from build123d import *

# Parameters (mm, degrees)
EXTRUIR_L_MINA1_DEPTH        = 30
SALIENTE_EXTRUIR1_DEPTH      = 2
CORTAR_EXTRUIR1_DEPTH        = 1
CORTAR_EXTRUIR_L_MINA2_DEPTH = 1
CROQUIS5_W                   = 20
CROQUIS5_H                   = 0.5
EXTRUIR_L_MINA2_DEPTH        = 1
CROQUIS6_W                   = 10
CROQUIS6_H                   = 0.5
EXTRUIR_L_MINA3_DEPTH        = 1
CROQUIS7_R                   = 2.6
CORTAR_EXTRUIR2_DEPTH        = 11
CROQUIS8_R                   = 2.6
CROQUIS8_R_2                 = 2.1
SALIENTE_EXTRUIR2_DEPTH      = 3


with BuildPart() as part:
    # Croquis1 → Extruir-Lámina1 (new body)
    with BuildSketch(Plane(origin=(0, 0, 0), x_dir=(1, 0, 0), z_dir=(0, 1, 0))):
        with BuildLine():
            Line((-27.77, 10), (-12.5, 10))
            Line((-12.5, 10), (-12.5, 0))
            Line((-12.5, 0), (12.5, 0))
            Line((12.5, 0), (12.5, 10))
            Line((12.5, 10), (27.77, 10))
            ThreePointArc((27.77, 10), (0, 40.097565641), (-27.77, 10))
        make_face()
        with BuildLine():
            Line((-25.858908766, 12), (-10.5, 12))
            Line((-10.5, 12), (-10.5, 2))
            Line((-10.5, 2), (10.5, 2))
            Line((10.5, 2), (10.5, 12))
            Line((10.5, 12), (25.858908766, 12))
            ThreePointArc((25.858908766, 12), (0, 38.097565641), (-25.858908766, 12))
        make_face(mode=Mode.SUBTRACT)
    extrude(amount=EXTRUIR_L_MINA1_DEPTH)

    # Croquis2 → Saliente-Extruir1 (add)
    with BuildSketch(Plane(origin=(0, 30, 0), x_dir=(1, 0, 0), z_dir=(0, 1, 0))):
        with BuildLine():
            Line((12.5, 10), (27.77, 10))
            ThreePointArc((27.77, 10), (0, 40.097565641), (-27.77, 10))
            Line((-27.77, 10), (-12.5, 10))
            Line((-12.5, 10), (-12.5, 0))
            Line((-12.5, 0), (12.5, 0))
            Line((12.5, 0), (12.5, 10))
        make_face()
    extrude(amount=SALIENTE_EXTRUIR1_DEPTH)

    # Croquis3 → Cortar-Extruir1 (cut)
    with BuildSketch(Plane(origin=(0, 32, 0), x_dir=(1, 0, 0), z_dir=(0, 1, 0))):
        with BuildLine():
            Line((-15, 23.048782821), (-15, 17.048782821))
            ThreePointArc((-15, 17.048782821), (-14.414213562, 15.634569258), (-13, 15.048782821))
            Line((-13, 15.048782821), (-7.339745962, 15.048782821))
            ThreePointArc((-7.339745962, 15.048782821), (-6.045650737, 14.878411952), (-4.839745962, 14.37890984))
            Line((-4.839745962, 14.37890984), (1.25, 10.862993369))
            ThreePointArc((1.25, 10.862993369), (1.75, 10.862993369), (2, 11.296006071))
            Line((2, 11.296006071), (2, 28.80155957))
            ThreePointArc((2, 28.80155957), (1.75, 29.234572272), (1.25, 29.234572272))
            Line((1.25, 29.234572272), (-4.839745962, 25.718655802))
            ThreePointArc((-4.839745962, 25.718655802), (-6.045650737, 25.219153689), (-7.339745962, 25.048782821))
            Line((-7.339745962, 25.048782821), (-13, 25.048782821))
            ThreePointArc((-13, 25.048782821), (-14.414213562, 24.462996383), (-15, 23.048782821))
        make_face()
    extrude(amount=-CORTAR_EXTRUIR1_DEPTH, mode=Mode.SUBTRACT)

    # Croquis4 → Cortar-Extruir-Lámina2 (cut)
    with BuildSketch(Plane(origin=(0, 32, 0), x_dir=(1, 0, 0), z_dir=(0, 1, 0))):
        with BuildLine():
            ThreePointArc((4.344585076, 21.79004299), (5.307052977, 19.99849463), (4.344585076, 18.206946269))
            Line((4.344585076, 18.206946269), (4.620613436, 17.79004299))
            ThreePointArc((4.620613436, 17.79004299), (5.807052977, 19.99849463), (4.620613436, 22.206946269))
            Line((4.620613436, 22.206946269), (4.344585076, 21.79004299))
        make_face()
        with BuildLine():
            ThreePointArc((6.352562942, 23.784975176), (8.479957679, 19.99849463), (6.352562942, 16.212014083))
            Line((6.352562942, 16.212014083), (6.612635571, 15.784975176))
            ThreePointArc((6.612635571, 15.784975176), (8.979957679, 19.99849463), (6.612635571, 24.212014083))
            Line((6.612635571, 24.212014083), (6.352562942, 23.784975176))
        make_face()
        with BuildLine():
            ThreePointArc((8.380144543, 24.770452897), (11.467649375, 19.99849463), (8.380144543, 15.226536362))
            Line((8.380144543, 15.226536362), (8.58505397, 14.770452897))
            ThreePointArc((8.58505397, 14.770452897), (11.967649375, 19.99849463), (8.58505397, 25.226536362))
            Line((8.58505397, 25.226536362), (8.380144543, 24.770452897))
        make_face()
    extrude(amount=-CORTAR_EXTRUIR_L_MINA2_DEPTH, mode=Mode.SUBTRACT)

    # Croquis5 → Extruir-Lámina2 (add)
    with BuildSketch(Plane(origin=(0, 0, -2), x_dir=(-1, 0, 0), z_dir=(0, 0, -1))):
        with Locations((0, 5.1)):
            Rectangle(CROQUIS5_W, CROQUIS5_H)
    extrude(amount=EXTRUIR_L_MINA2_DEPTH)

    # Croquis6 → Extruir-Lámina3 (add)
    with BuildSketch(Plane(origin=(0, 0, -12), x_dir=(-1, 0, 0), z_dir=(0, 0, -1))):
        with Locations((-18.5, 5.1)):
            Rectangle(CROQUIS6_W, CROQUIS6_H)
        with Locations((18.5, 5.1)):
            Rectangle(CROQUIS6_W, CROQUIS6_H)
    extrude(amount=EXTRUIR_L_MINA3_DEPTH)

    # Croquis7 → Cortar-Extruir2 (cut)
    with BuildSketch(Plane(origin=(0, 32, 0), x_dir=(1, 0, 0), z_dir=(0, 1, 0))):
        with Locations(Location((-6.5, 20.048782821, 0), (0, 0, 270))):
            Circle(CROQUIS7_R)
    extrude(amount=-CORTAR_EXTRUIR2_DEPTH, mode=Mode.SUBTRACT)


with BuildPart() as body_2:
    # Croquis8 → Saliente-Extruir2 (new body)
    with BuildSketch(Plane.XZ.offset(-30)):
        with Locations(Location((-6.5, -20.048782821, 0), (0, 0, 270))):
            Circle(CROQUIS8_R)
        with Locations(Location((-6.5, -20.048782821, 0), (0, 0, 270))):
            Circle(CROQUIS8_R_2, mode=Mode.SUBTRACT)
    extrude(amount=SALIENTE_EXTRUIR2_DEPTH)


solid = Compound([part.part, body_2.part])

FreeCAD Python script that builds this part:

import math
import FreeCAD as App
import Part
import Sketcher

V = App.Vector
Q = App.Units.Quantity

doc = App.newDocument("Part")
params = doc.addObject("Spreadsheet::Sheet", "Params")
for row, (alias, value) in enumerate([
    ("sketch1_width", "25 mm"),
    ("sketch1_width2", "21 mm"),
    ("sketch1_height", "10 mm"),
    ("sketch1_radius", "27.86 mm"),
    ("sketch1_radius2", "25.86 mm"),
    ("pad1_length", "30 mm"),
    ("sketch2_width", "25 mm"),
    ("sketch2_height", "10 mm"),
    ("sketch2_radius", "27.86 mm"),
    ("sketch2_width2", "15.27 mm"),
    ("pad2_length", "2 mm"),
    ("sketch3_radius", "2 mm"),
    ("sketch3_radius2", "5 mm"),
    ("sketch3_radius3", "0.5 mm"),
    ("sketch3_height", "6 mm"),
    ("pocket1_length", "1 mm"),
    ("sketch4_length", "0.5 mm"),
    ("pocket2_length", "1 mm"),
    ("sketch5_width", "20 mm"),
    ("sketch5_height", "0.5 mm"),
    ("pad3_length", "1 mm"),
    ("sketch6_width", "10 mm"),
    ("sketch6_height", "0.5 mm"),
    ("pad4_length", "1 mm"),
    ("sketch7_diameter", "5.2 mm"),
    ("pocket3_length", "11 mm"),
    ("sketch8_diameter", "5.2 mm"),
    ("sketch8_diameter2", "4.2 mm"),
    ("pad5_length", "3 mm"),
], start=1):
    params.set(f"A{row}", alias)
    params.set(f"B{row}", "=" + value)
    params.setAlias(f"B{row}", alias)

body = doc.addObject("PartDesign::Body", "Body")

# Sketch on XZ plane
sketch1 = body.newObject("Sketcher::SketchObject", "Sketch")
sketch1.AttachmentSupport = (doc.getObject("XZ_Plane"), [""])
sketch1.MapMode = "FlatFace"
sketch1.addGeometry([
    Part.LineSegment(V(-28, -10, 0), V(-12, -10, 0)),  # 0
    Part.LineSegment(V(-12, -10, 0), V(-12, 0, 0)),  # 1
    Part.LineSegment(V(-12, 0, 0), V(12, 0, 0)),  # 2
    Part.LineSegment(V(12, 0, 0), V(12, -10, 0)),  # 3
    Part.LineSegment(V(12, -10, 0), V(28, -10, 0)),  # 4
    Part.ArcOfCircle(Part.Circle(V(0, -12, 0), V(0, 0, 1), 28), math.radians(175), math.radians(365)),  # 5
    Part.LineSegment(V(-10, -12, 0), V(-26, -12, 0)),  # 6
    Part.ArcOfCircle(Part.Circle(V(0, -12, 0), V(0, 0, 1), 26), math.radians(179), math.radians(361)),  # 7
    Part.LineSegment(V(26, -12, 0), V(10, -12, 0)),  # 8
    Part.LineSegment(V(10, -12, 0), V(10, -2, 0)),  # 9
    Part.LineSegment(V(10, -2, 0), V(-10, -2, 0)),  # 10
    Part.LineSegment(V(-10, -2, 0), V(-10, -12, 0)),  # 11
], False)
sketch1.addConstraint([
    Sketcher.Constraint("Coincident", 0, 2, 1, 1),
    Sketcher.Constraint("Coincident", 1, 2, 2, 1),
    Sketcher.Constraint("Coincident", 2, 2, 3, 1),
    Sketcher.Constraint("Coincident", 3, 2, 4, 1),
    Sketcher.Constraint("Coincident", 4, 2, 5, 2),
    Sketcher.Constraint("Coincident", 5, 1, 0, 1),
    Sketcher.Constraint("Coincident", 6, 2, 7, 1),
    Sketcher.Constraint("Coincident", 7, 2, 8, 1),
    Sketcher.Constraint("Coincident", 8, 2, 9, 1),
    Sketcher.Constraint("Coincident", 9, 2, 10, 1),
    Sketcher.Constraint("Coincident", 10, 2, 11, 1),
    Sketcher.Constraint("Coincident", 11, 2, 6, 1),
    Sketcher.Constraint("Horizontal", 0),
    Sketcher.Constraint("Vertical", 1),
    Sketcher.Constraint("Horizontal", 2),
    Sketcher.Constraint("Vertical", 3),
    Sketcher.Constraint("Horizontal", 4),
    Sketcher.Constraint("Horizontal", 6),
    Sketcher.Constraint("Horizontal", 8),
    Sketcher.Constraint("Vertical", 9),
    Sketcher.Constraint("Horizontal", 10),
    Sketcher.Constraint("Vertical", 11),
    Sketcher.Constraint("Coincident", 7, 3, 5, 3),
    Sketcher.Constraint("Symmetric", 1, 2, 2, 2, -1, 1),
    Sketcher.Constraint("Symmetric", 4, 2, 5, 1, -2),
    Sketcher.Constraint("Symmetric", 8, 2, 11, 2, -2),
    Sketcher.Constraint("Equal", 3, 9),
    Sketcher.Constraint("DistanceX", 2, 1, 2, 2, Q("25 mm")),
    Sketcher.Constraint("DistanceX", 10, 2, 10, 1, Q("21 mm")),
    Sketcher.Constraint("DistanceY", 1, 1, 1, 2, Q("10 mm")),
    Sketcher.Constraint("Radius", 5, Q("27.86 mm")),
    Sketcher.Constraint("Radius", 7, Q("25.86 mm")),
    Sketcher.Constraint("DistanceY", 6, 2, -1, 1, Q("12 mm")),
    Sketcher.Constraint("DistanceX", 0, 1, 0, 2, Q("15.27 mm")),
])
sketch1.setExpression("Constraints[27]", "Params.sketch1_width")
sketch1.setExpression("Constraints[28]", "Params.sketch1_width2")
sketch1.setExpression("Constraints[29]", "Params.sketch1_height")
sketch1.setExpression("Constraints[30]", "Params.sketch1_radius")
sketch1.setExpression("Constraints[31]", "Params.sketch1_radius2")
pad1 = body.newObject("PartDesign::Pad", "Pad")
pad1.Profile = sketch1
pad1.setExpression("Length", "Params.pad1_length")
pad1.Reversed = True

# Sketch on XZ plane
sketch2 = body.newObject("Sketcher::SketchObject", "Sketch001")
sketch2.AttachmentSupport = (doc.getObject("XZ_Plane"), [""])
sketch2.MapMode = "FlatFace"
sketch2.AttachmentOffset = App.Placement(V(0, 0, -30), App.Rotation())
sketch2.addGeometry([
    Part.LineSegment(V(12, -10, 0), V(28, -10, 0)),  # 0
    Part.ArcOfCircle(Part.Circle(V(0, -12, 0), V(0, 0, 1), 28), math.radians(175), math.radians(365)),  # 1
    Part.LineSegment(V(-28, -10, 0), V(-12, -10, 0)),  # 2
    Part.LineSegment(V(-12, -10, 0), V(-12, 0, 0)),  # 3
    Part.LineSegment(V(-12, 0, 0), V(12, 0, 0)),  # 4
    Part.LineSegment(V(12, 0, 0), V(12, -10, 0)),  # 5
], False)
sketch2.addConstraint([
    Sketcher.Constraint("Coincident", 0, 2, 1, 2),
    Sketcher.Constraint("Coincident", 1, 1, 2, 1),
    Sketcher.Constraint("Coincident", 2, 2, 3, 1),
    Sketcher.Constraint("Coincident", 3, 2, 4, 1),
    Sketcher.Constraint("Coincident", 4, 2, 5, 1),
    Sketcher.Constraint("Coincident", 5, 2, 0, 1),
    Sketcher.Constraint("Horizontal", 0),
    Sketcher.Constraint("Horizontal", 2),
    Sketcher.Constraint("Vertical", 3),
    Sketcher.Constraint("Horizontal", 4),
    Sketcher.Constraint("Vertical", 5),
    Sketcher.Constraint("Symmetric", 3, 2, 4, 2, -1, 1),
    Sketcher.Constraint("Symmetric", 0, 2, 1, 1, -2),
    Sketcher.Constraint("DistanceX", 4, 1, 4, 2, Q("25 mm")),
    Sketcher.Constraint("DistanceY", 3, 1, 3, 2, Q("10 mm")),
    Sketcher.Constraint("Radius", 1, Q("27.86 mm")),
    Sketcher.Constraint("DistanceX", 0, 1, 0, 2, Q("15.27 mm")),
])
sketch2.setExpression("Constraints[13]", "Params.sketch2_width")
sketch2.setExpression("Constraints[14]", "Params.sketch2_height")
sketch2.setExpression("Constraints[15]", "Params.sketch2_radius")
sketch2.setExpression("Constraints[16]", "Params.sketch2_width2")
pad2 = body.newObject("PartDesign::Pad", "Pad001")
pad2.Profile = sketch2
pad2.setExpression("Length", "Params.pad2_length")
pad2.Reversed = True

# Sketch on XZ plane
sketch3 = body.newObject("Sketcher::SketchObject", "Sketch002")
sketch3.AttachmentSupport = (doc.getObject("XZ_Plane"), [""])
sketch3.MapMode = "FlatFace"
sketch3.AttachmentOffset = App.Placement(V(0, 0, -32), App.Rotation())
sketch3.addGeometry([
    Part.LineSegment(V(-15, -23, 0), V(-15, -17, 0)),  # 0
    Part.ArcOfCircle(Part.Circle(V(-13, -17, 0), V(0, 0, 1), 2), math.radians(90), math.radians(180)),  # 1
    Part.LineSegment(V(-13, -15, 0), V(-7.3, -15, 0)),  # 2
    Part.ArcOfCircle(Part.Circle(V(-7.3, -10, 0), V(0, 0, 1), 5), math.radians(-90), math.radians(-60)),  # 3
    Part.LineSegment(V(-4.8, -14.4, 0), V(1.2, -10.9, 0)),  # 4
    Part.ArcOfCircle(Part.Circle(V(1.5, -11.3, 0), V(0, 0, 1), 0.5), math.radians(0), math.radians(120)),  # 5
    Part.LineSegment(V(2, -11.3, 0), V(2, -28.8, 0)),  # 6
    Part.ArcOfCircle(Part.Circle(V(1.5, -28.8, 0), V(0, 0, 1), 0.5), math.radians(-120), math.radians(0)),  # 7
    Part.LineSegment(V(1.2, -29.2, 0), V(-4.8, -25.7, 0)),  # 8
    Part.ArcOfCircle(Part.Circle(V(-7.3, -30, 0), V(0, 0, 1), 5), math.radians(60), math.radians(90)),  # 9
    Part.LineSegment(V(-7.3, -25, 0), V(-13, -25, 0)),  # 10
    Part.ArcOfCircle(Part.Circle(V(-13, -23, 0), V(0, 0, 1), 2), math.radians(-180), math.radians(-90)),  # 11
], False)
sketch3.addConstraint([
    Sketcher.Constraint("Tangent", 0, 2, 1, 2),
    Sketcher.Constraint("Tangent", 1, 1, 2, 1),
    Sketcher.Constraint("Tangent", 2, 2, 3, 1),
    Sketcher.Constraint("Tangent", 3, 2, 4, 1),
    Sketcher.Constraint("Tangent", 4, 2, 5, 2),
    Sketcher.Constraint("Tangent", 5, 1, 6, 1),
    Sketcher.Constraint("Tangent", 6, 2, 7, 2),
    Sketcher.Constraint("Tangent", 7, 1, 8, 1),
    Sketcher.Constraint("Tangent", 8, 2, 9, 1),
    Sketcher.Constraint("Tangent", 9, 2, 10, 1),
    Sketcher.Constraint("Tangent", 10, 2, 11, 2),
    Sketcher.Constraint("Tangent", 11, 1, 0, 1),
    Sketcher.Constraint("Vertical", 0),
    Sketcher.Constraint("Horizontal", 2),
    Sketcher.Constraint("Vertical", 6),
    Sketcher.Constraint("Horizontal", 10),
    Sketcher.Constraint("Equal", 5, 7),
    Sketcher.Constraint("Equal", 3, 9),
    Sketcher.Constraint("Equal", 1, 11),
    Sketcher.Constraint("Vertical", 3, 3, 9, 3),
    Sketcher.Constraint("Vertical", 4, 2, 7, 1),
    Sketcher.Constraint("Radius", 1, Q("2 mm")),
    Sketcher.Constraint("Radius", 3, Q("5 mm")),
    Sketcher.Constraint("Radius", 5, Q("0.5 mm")),
    Sketcher.Constraint("DistanceY", 0, 1, 0, 2, Q("6 mm")),
    Sketcher.Constraint("Angle", 4, Q("30 deg")),
    Sketcher.Constraint("DistanceX", 1, 3, -1, 1, Q("13 mm")),
    Sketcher.Constraint("DistanceX", -1, 1, 5, 1, Q("2 mm")),
    Sketcher.Constraint("DistanceX", 2, 1, 2, 2, Q("5.660254 mm")),
    Sketcher.Constraint("DistanceY", 7, 3, -1, 1, Q("28.80156 mm")),
])
sketch3.setExpression("Constraints[21]", "Params.sketch3_radius")
sketch3.setExpression("Constraints[22]", "Params.sketch3_radius2")
sketch3.setExpression("Constraints[23]", "Params.sketch3_radius3")
sketch3.setExpression("Constraints[24]", "Params.sketch3_height")
pocket1 = body.newObject("PartDesign::Pocket", "Pocket")
pocket1.Profile = sketch3
pocket1.setExpression("Length", "Params.pocket1_length")
pocket1.Reversed = True

# Sketch on XZ plane
sketch4 = body.newObject("Sketcher::SketchObject", "Sketch003")
sketch4.AttachmentSupport = (doc.getObject("XZ_Plane"), [""])
sketch4.MapMode = "FlatFace"
sketch4.AttachmentOffset = App.Placement(V(0, 0, -32), App.Rotation())
sketch4.addGeometry([
    Part.ArcOfCircle(Part.Circle(V(3.16, -20, 0), V(0, 0, 1), 2.15), math.radians(-56), math.radians(56)),  # 0
    Part.LineSegment(V(4.34, -18.21, 0), V(4.62, -17.79, 0)),  # 1
    Part.ArcOfCircle(Part.Circle(V(3.16, -20, 0), V(0, 0, 1), 2.65), math.radians(-56), math.radians(56)),  # 2
    Part.LineSegment(V(4.62, -22.21, 0), V(4.34, -21.79, 0)),  # 3
    Part.ArcOfCircle(Part.Circle(V(4.05, -20, 0), V(0, 0, 1), 4.43), math.radians(-59), math.radians(59)),  # 4
    Part.LineSegment(V(6.35, -16.21, 0), V(6.61, -15.78, 0)),  # 5
    Part.ArcOfCircle(Part.Circle(V(4.05, -20, 0), V(0, 0, 1), 4.93), math.radians(-59), math.radians(59)),  # 6
    Part.LineSegment(V(6.61, -24.21, 0), V(6.35, -23.78, 0)),  # 7
    Part.ArcOfCircle(Part.Circle(V(6.24, -20, 0), V(0, 0, 1), 5.23), math.radians(-66), math.radians(66)),  # 8
    Part.LineSegment(V(8.38, -15.23, 0), V(8.59, -14.77, 0)),  # 9
    Part.ArcOfCircle(Part.Circle(V(6.24, -20, 0), V(0, 0, 1), 5.73), math.radians(-66), math.radians(66)),  # 10
    Part.LineSegment(V(8.59, -25.23, 0), V(8.38, -24.77, 0)),  # 11
], False)
sketch4.addConstraint([
    Sketcher.Constraint("Coincident", 0, 2, 1, 1),
    Sketcher.Constraint("Coincident", 1, 2, 2, 2),
    Sketcher.Constraint("Coincident", 2, 1, 3, 1),
    Sketcher.Constraint("Coincident", 3, 2, 0, 1),
    Sketcher.Constraint("Coincident", 4, 2, 5, 1),
    Sketcher.Constraint("Coincident", 5, 2, 6, 2),
    Sketcher.Constraint("Coincident", 6, 1, 7, 1),
    Sketcher.Constraint("Coincident", 7, 2, 4, 1),
    Sketcher.Constraint("Coincident", 8, 2, 9, 1),
    Sketcher.Constraint("Coincident", 9, 2, 10, 2),
    Sketcher.Constraint("Coincident", 10, 1, 11, 1),
    Sketcher.Constraint("Coincident", 11, 2, 8, 1),
    Sketcher.Constraint("Coincident", 2, 3, 0, 3),
    Sketcher.Constraint("Coincident", 6, 3, 4, 3),
    Sketcher.Constraint("Coincident", 10, 3, 8, 3),
    Sketcher.Constraint("Horizontal", 2, 3, 4, 3),
    Sketcher.Constraint("Horizontal", 6, 3, 8, 3),
    Sketcher.Constraint("Vertical", 1, 2, 2, 1),
    Sketcher.Constraint("Vertical", 0, 2, 3, 2),
    Sketcher.Constraint("Vertical", 5, 2, 6, 1),
    Sketcher.Constraint("Vertical", 4, 2, 7, 2),
    Sketcher.Constraint("Vertical", 9, 2, 10, 1),
    Sketcher.Constraint("Vertical", 8, 2, 11, 2),
    Sketcher.Constraint("Equal", 3, 5),
    Sketcher.Constraint("Equal", 7, 9),
    Sketcher.Constraint("Distance", 1, Q("0.5 mm")),
    Sketcher.Constraint("Radius", 0, Q("2.148638 mm")),
    Sketcher.Constraint("Radius", 4, Q("4.433414 mm")),
    Sketcher.Constraint("Radius", 8, Q("5.231453 mm")),
    Sketcher.Constraint("DistanceX", 2, 3, 1, 2, Q("1.462198 mm")),
    Sketcher.Constraint("DistanceX", 2, 3, 4, 3, Q("0.888129 mm")),
    Sketcher.Constraint("DistanceX", 2, 3, 8, 3, Q("3.077781 mm")),
    Sketcher.Constraint("DistanceX", 4, 3, 0, 2, Q("0.298041 mm")),
    Sketcher.Constraint("DistanceX", 1, 2, 4, 2, Q("1.73195 mm")),
    Sketcher.Constraint("DistanceY", 4, 2, 5, 2, Q("0.427039 mm")),
    Sketcher.Constraint("DistanceX", 5, 2, 8, 2, Q("1.767509 mm")),
    Sketcher.Constraint("DistanceX", 8, 2, 9, 2, Q("0.204909 mm")),
    Sketcher.Constraint("DistanceX", -1, 1, 0, 3, Q("3.158415 mm")),
    Sketcher.Constraint("DistanceY", 0, 3, -1, 1, Q("19.998495 mm")),
])
sketch4.setExpression("Constraints[25]", "Params.sketch4_length")
pocket2 = body.newObject("PartDesign::Pocket", "Pocket001")
pocket2.Profile = sketch4
pocket2.setExpression("Length", "Params.pocket2_length")
pocket2.Reversed = True

# Sketch on XY plane
sketch5 = body.newObject("Sketcher::SketchObject", "Sketch004")
sketch5.AttachmentSupport = (doc.getObject("XY_Plane"), [""])
sketch5.MapMode = "FlatFace"
sketch5.AttachmentOffset = App.Placement(V(0, 0, -2), App.Rotation())
sketch5.addGeometry([
    Part.LineSegment(V(10, 5.3, 0), V(10, 4.8, 0)),
    Part.LineSegment(V(10, 4.8, 0), V(-10, 4.8, 0)),
    Part.LineSegment(V(-10, 4.8, 0), V(-10, 5.3, 0)),
    Part.LineSegment(V(-10, 5.3, 0), V(10, 5.3, 0)),
], False)
sketch5.addConstraint([
    Sketcher.Constraint("Coincident", 0, 2, 1, 1),
    Sketcher.Constraint("Coincident", 1, 2, 2, 1),
    Sketcher.Constraint("Coincident", 2, 2, 3, 1),
    Sketcher.Constraint("Coincident", 3, 2, 0, 1),
    Sketcher.Constraint("Vertical", 0),
    Sketcher.Constraint("Horizontal", 1),
    Sketcher.Constraint("Vertical", 2),
    Sketcher.Constraint("Horizontal", 3),
    Sketcher.Constraint("DistanceX", 1, 2, 1, 1, Q("20 mm")),
    Sketcher.Constraint("DistanceY", 0, 2, 0, 1, Q("0.5 mm")),
    Sketcher.Constraint("DistanceX", -1, 1, 0, 2, Q("10 mm")),
    Sketcher.Constraint("DistanceY", -1, 1, 0, 2, Q("4.85 mm")),
])
sketch5.setExpression("Constraints[8]", "Params.sketch5_width")
sketch5.setExpression("Constraints[9]", "Params.sketch5_height")
pad3 = body.newObject("PartDesign::Pad", "Pad002")
pad3.Profile = sketch5
pad3.setExpression("Length", "Params.pad3_length")
pad3.Reversed = True

# Sketch on XY plane
sketch6 = body.newObject("Sketcher::SketchObject", "Sketch005")
sketch6.AttachmentSupport = (doc.getObject("XY_Plane"), [""])
sketch6.MapMode = "FlatFace"
sketch6.AttachmentOffset = App.Placement(V(0, 0, -12), App.Rotation())
sketch6.addGeometry([
    Part.LineSegment(V(23.5, 5.3, 0), V(23.5, 4.8, 0)),  # 0
    Part.LineSegment(V(23.5, 4.8, 0), V(13.5, 4.8, 0)),  # 1
    Part.LineSegment(V(13.5, 4.8, 0), V(13.5, 5.3, 0)),  # 2
    Part.LineSegment(V(13.5, 5.3, 0), V(23.5, 5.3, 0)),  # 3
    Part.LineSegment(V(-13.5, 5.3, 0), V(-13.5, 4.8, 0)),  # 4
    Part.LineSegment(V(-13.5, 4.8, 0), V(-23.5, 4.8, 0)),  # 5
    Part.LineSegment(V(-23.5, 4.8, 0), V(-23.5, 5.3, 0)),  # 6
    Part.LineSegment(V(-23.5, 5.3, 0), V(-13.5, 5.3, 0)),  # 7
], False)
sketch6.addConstraint([
    Sketcher.Constraint("Coincident", 0, 2, 1, 1),
    Sketcher.Constraint("Coincident", 1, 2, 2, 1),
    Sketcher.Constraint("Coincident", 2, 2, 3, 1),
    Sketcher.Constraint("Coincident", 3, 2, 0, 1),
    Sketcher.Constraint("Coincident", 4, 2, 5, 1),
    Sketcher.Constraint("Coincident", 5, 2, 6, 1),
    Sketcher.Constraint("Coincident", 6, 2, 7, 1),
    Sketcher.Constraint("Coincident", 7, 2, 4, 1),
    Sketcher.Constraint("Vertical", 0),
    Sketcher.Constraint("Horizontal", 1),
    Sketcher.Constraint("Vertical", 2),
    Sketcher.Constraint("Horizontal", 3),
    Sketcher.Constraint("Vertical", 4),
    Sketcher.Constraint("Horizontal", 5),
    Sketcher.Constraint("Vertical", 6),
    Sketcher.Constraint("Horizontal", 7),
    Sketcher.Constraint("Symmetric", 1, 2, 4, 2, -2),
    Sketcher.Constraint("Symmetric", 3, 2, 6, 2, -2),
    Sketcher.Constraint("DistanceX", 1, 2, 1, 1, Q("10 mm")),
    Sketcher.Constraint("DistanceY", 0, 2, 0, 1, Q("0.5 mm")),
    Sketcher.Constraint("DistanceX", 4, 2, 1, 2, Q("27 mm")),
    Sketcher.Constraint("DistanceY", -1, 1, 0, 2, Q("4.85 mm")),
])
sketch6.setExpression("Constraints[18]", "Params.sketch6_width")
sketch6.setExpression("Constraints[19]", "Params.sketch6_height")
pad4 = body.newObject("PartDesign::Pad", "Pad003")
pad4.Profile = sketch6
pad4.setExpression("Length", "Params.pad4_length")
pad4.Reversed = True

# Sketch on XZ plane
sketch7 = body.newObject("Sketcher::SketchObject", "Sketch006")
sketch7.AttachmentSupport = (doc.getObject("XZ_Plane"), [""])
sketch7.MapMode = "FlatFace"
sketch7.AttachmentOffset = App.Placement(V(0, 0, -32), App.Rotation())
sketch7.addGeometry(Part.Circle(V(-6.5, -20, 0), V(0, 0, 1), 2.6), False)
sketch7.addConstraint([
    Sketcher.Constraint("Diameter", 0, Q("5.2 mm")),
    Sketcher.Constraint("DistanceX", 0, 3, -1, 1, Q("6.5 mm")),
    Sketcher.Constraint("DistanceY", 0, 3, -1, 1, Q("20.048783 mm")),
])
sketch7.setExpression("Constraints[0]", "Params.sketch7_diameter")
pocket3 = body.newObject("PartDesign::Pocket", "Pocket002")
pocket3.Profile = sketch7
pocket3.setExpression("Length", "Params.pocket3_length")
pocket3.Reversed = True
body2 = doc.addObject("PartDesign::Body", "Body001")

# Sketch on XZ plane
sketch8 = body2.newObject("Sketcher::SketchObject", "Sketch007")
sketch8.AttachmentSupport = (doc.getObject("XZ_Plane001"), [""])
sketch8.MapMode = "FlatFace"
sketch8.AttachmentOffset = App.Placement(V(0, 0, -30), App.Rotation())
sketch8.addGeometry([
    Part.Circle(V(-6.5, -20, 0), V(0, 0, 1), 2.6),
    Part.Circle(V(-6.5, -20, 0), V(0, 0, 1), 2.1),
], False)
sketch8.addConstraint([
    Sketcher.Constraint("Coincident", 1, 3, 0, 3),
    Sketcher.Constraint("Diameter", 0, Q("5.2 mm")),
    Sketcher.Constraint("Diameter", 1, Q("4.2 mm")),
    Sketcher.Constraint("DistanceX", 0, 3, -1, 1, Q("6.5 mm")),
    Sketcher.Constraint("DistanceY", 0, 3, -1, 1, Q("20.048783 mm")),
])
sketch8.setExpression("Constraints[1]", "Params.sketch8_diameter")
sketch8.setExpression("Constraints[2]", "Params.sketch8_diameter2")
pad5 = body2.newObject("PartDesign::Pad", "Pad004")
pad5.Profile = sketch8
pad5.setExpression("Length", "Params.pad5_length")

doc.recompute()
